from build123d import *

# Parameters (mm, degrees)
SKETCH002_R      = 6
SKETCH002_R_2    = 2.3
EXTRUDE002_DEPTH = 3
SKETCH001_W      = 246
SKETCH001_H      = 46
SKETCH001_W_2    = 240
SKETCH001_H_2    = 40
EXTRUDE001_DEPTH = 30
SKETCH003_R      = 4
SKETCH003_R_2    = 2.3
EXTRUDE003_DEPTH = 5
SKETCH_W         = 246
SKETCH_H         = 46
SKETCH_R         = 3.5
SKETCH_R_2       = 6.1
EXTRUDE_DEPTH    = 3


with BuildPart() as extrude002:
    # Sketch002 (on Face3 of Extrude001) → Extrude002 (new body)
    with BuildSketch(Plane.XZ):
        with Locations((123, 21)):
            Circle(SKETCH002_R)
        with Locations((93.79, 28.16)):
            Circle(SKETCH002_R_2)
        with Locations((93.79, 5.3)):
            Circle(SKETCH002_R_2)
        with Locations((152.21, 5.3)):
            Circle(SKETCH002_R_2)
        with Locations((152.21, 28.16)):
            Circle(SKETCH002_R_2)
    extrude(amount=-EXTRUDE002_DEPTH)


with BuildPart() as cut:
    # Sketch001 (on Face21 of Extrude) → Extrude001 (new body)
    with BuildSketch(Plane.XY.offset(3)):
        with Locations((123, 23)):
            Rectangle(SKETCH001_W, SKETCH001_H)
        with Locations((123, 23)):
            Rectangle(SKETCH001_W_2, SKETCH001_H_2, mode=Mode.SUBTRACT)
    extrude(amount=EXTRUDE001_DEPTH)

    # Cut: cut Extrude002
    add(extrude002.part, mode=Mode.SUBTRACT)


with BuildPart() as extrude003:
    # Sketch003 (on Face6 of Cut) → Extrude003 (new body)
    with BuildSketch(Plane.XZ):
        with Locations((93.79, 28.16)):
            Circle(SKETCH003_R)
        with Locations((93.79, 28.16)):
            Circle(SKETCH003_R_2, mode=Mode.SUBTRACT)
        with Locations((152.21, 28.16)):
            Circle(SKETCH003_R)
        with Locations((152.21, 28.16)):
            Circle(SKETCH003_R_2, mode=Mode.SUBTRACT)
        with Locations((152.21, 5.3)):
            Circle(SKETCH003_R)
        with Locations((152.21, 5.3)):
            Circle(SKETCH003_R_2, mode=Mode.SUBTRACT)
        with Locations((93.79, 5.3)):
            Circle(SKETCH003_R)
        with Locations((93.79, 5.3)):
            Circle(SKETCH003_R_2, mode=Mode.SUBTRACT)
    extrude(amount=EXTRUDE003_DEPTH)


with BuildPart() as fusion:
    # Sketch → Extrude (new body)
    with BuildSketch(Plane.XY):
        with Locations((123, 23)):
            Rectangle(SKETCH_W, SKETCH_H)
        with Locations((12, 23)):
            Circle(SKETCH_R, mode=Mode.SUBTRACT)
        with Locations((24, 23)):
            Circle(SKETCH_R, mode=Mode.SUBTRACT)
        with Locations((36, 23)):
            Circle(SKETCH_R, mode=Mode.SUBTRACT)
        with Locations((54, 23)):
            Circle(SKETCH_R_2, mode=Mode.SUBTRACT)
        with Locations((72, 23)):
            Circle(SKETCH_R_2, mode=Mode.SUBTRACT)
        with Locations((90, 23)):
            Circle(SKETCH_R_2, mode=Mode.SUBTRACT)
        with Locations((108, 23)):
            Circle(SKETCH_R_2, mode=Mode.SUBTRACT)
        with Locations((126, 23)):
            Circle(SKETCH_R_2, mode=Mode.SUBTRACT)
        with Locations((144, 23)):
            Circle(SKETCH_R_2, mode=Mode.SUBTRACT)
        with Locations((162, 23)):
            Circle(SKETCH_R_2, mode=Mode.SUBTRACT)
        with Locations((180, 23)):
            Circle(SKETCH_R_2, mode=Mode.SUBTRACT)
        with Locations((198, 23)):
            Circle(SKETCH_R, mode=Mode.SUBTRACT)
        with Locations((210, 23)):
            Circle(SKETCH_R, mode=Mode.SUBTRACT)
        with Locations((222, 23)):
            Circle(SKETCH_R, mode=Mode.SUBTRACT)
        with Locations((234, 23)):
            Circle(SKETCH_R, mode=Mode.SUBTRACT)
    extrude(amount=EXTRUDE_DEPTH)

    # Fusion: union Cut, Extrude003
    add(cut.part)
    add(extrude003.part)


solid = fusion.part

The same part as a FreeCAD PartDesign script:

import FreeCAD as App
import Part
import Sketcher


def add_polygon(sketch, points):
    """Adds a closed chain of lines whose ends are joined by coincident constraints."""
    first, n = sketch.GeometryCount, len(points)
    for a, b in zip(points, points[1:] + points[:1]):
        sketch.addGeometry(Part.LineSegment(App.Vector(*a, 0), App.Vector(*b, 0)), False)
    for i in range(n):
        sketch.addConstraint(Sketcher.Constraint("Coincident", first + i, 2, first + (i + 1) % n, 1))

doc = App.newDocument("Part")
params = doc.addObject("Spreadsheet::Sheet", "Params")
for row, (alias, value) in enumerate([
    ("sketch1_diameter", "12 mm"),
    ("sketch1_diameter2", "4.6 mm"),
    ("pad1_length", "3 mm"),
    ("sketch2_width", "246 mm"),
    ("sketch2_width2", "240 mm"),
    ("sketch2_height", "46 mm"),
    ("sketch2_height2", "40 mm"),
    ("pad2_length", "30 mm"),
    ("sketch3_diameter", "8 mm"),
    ("sketch3_diameter2", "4.6 mm"),
    ("pad3_length", "5 mm"),
    ("sketch4_diameter", "7 mm"),
    ("sketch4_diameter2", "12.2 mm"),
    ("sketch4_width", "246 mm"),
    ("sketch4_height", "46 mm"),
    ("pad4_length", "3 mm"),
], start=1):
    params.set(f"A{row}", alias)
    params.set(f"B{row}", "=" + value)
    params.setAlias(f"B{row}", alias)

body = doc.addObject("PartDesign::Body", "Body")
body.AllowCompound = True

sketch1 = doc.addObject("Sketcher::SketchObject", "Sketch")
body.addObject(sketch1)
sketch1.AttachmentSupport = (doc.XZ_Plane, [""])
sketch1.MapMode = "FlatFace"
sketch1.addGeometry([
    Part.Circle(App.Vector(123, 21, 0), App.Vector(0, 0, 1), 6),
    Part.Circle(App.Vector(93.8, 28.2, 0), App.Vector(0, 0, 1), 2.3),
    Part.Circle(App.Vector(93.8, 5.3, 0), App.Vector(0, 0, 1), 2.3),
    Part.Circle(App.Vector(152.2, 5.3, 0), App.Vector(0, 0, 1), 2.3),
    Part.Circle(App.Vector(152.2, 28.2, 0), App.Vector(0, 0, 1), 2.3),
], False)
sketch1.addConstraint([
    Sketcher.Constraint("Equal", 1, 2),
    Sketcher.Constraint("Equal", 2, 3),
    Sketcher.Constraint("Equal", 3, 4),
    Sketcher.Constraint("Horizontal", 2, 3, 3, 3),
    Sketcher.Constraint("Horizontal", 1, 3, 4, 3),
    Sketcher.Constraint("Vertical", 1, 3, 2, 3),
    Sketcher.Constraint("Vertical", 3, 3, 4, 3),
    Sketcher.Constraint("Diameter", 0, 12.0),
    Sketcher.Constraint("Diameter", 1, 4.6),
    Sketcher.Constraint("DistanceX", -1, 1, 0, 3, 123.0),
    Sketcher.Constraint("DistanceY", -1, 1, 0, 3, 21.0),
    Sketcher.Constraint("DistanceY", -1, 1, 2, 3, 5.3),
    Sketcher.Constraint("DistanceX", -1, 1, 1, 3, 93.79),
    Sketcher.Constraint("DistanceY", -1, 1, 1, 3, 28.16),
    Sketcher.Constraint("DistanceX", -1, 1, 3, 3, 152.21),
])
sketch1.setExpression("Constraints[7]", "Params.sketch1_diameter")
sketch1.setExpression("Constraints[8]", "Params.sketch1_diameter2")
pad1 = doc.addObject("PartDesign::Pad", "Pad")
body.addObject(pad1)
pad1.Profile = sketch1
pad1.setExpression("Length", "Params.pad1_length")
pad1.Reversed = True
body2 = doc.addObject("PartDesign::Body", "Body001")

sketch2 = doc.addObject("Sketcher::SketchObject", "Sketch001")
body2.addObject(sketch2)
sketch2.AttachmentSupport = (doc.getObject("XY_Plane001"), [""])
sketch2.MapMode = "FlatFace"
sketch2.AttachmentOffset = App.Placement(App.Vector(0, 0, 3), App.Rotation())
add_polygon(sketch2, [(0, 46), (0, 0), (246, 0), (246, 46)])
add_polygon(sketch2, [(243, 3), (3, 3), (3, 43), (243, 43)])
sketch2.addConstraint([
    Sketcher.Constraint("Vertical", 0),
    Sketcher.Constraint("Horizontal", 1),
    Sketcher.Constraint("Vertical", 2),
    Sketcher.Constraint("Horizontal", 3),
    Sketcher.Constraint("Horizontal", 4),
    Sketcher.Constraint("Vertical", 5),
    Sketcher.Constraint("Horizontal", 6),
    Sketcher.Constraint("Vertical", 7),
    Sketcher.Constraint("Coincident", 0, 2, -1, 1),
    Sketcher.Constraint("DistanceX", 1, 1, 1, 2, 246.0),
    Sketcher.Constraint("DistanceX", 4, 2, 4, 1, 240.0),
    Sketcher.Constraint("DistanceY", 0, 2, 0, 1, 46.0),
    Sketcher.Constraint("DistanceY", 5, 1, 5, 2, 40.0),
    Sketcher.Constraint("DistanceX", -1, 1, 4, 2, 3.0),
    Sketcher.Constraint("DistanceY", -1, 1, 4, 2, 3.0),
])
sketch2.setExpression("Constraints[17]", "Params.sketch2_width")
sketch2.setExpression("Constraints[18]", "Params.sketch2_width2")
sketch2.setExpression("Constraints[19]", "Params.sketch2_height")
sketch2.setExpression("Constraints[20]", "Params.sketch2_height2")
pad2 = doc.addObject("PartDesign::Pad", "Pad001")
body2.addObject(pad2)
pad2.Profile = sketch2
pad2.setExpression("Length", "Params.pad2_length")
doc.recompute()

boolean = doc.addObject("PartDesign::Boolean", "Boolean")
body2.addObject(boolean)
boolean.Type = "Cut"
boolean.addObjects([body])
body3 = doc.addObject("PartDesign::Body", "Body002")
body3.AllowCompound = True

sketch3 = doc.addObject("Sketcher::SketchObject", "Sketch002")
body3.addObject(sketch3)
sketch3.AttachmentSupport = (doc.getObject("XZ_Plane002"), [""])
sketch3.MapMode = "FlatFace"
sketch3.addGeometry([
    Part.Circle(App.Vector(93.8, 28.2, 0), App.Vector(0, 0, 1), 4),
    Part.Circle(App.Vector(93.8, 28.2, 0), App.Vector(0, 0, 1), 2.3),
    Part.Circle(App.Vector(152.2, 28.2, 0), App.Vector(0, 0, 1), 4),
    Part.Circle(App.Vector(152.2, 28.2, 0), App.Vector(0, 0, 1), 2.3),
    Part.Circle(App.Vector(152.2, 5.3, 0), App.Vector(0, 0, 1), 4),
    Part.Circle(App.Vector(152.2, 5.3, 0), App.Vector(0, 0, 1), 2.3),
    Part.Circle(App.Vector(93.8, 5.3, 0), App.Vector(0, 0, 1), 4),
    Part.Circle(App.Vector(93.8, 5.3, 0), App.Vector(0, 0, 1), 2.3),
], False)
sketch3.addConstraint([
    Sketcher.Constraint("Coincident", 1, 3, 0, 3),
    Sketcher.Constraint("Coincident", 3, 3, 2, 3),
    Sketcher.Constraint("Coincident", 5, 3, 4, 3),
    Sketcher.Constraint("Coincident", 7, 3, 6, 3),
    Sketcher.Constraint("Equal", 0, 2),
    Sketcher.Constraint("Equal", 1, 3),
    Sketcher.Constraint("Equal", 2, 4),
    Sketcher.Constraint("Equal", 3, 5),
    Sketcher.Constraint("Equal", 4, 6),
    Sketcher.Constraint("Equal", 5, 7),
    Sketcher.Constraint("Horizontal", 1, 3, 2, 3),
    Sketcher.Constraint("Horizontal", 5, 3, 6, 3),
    Sketcher.Constraint("Vertical", 3, 3, 4, 3),
    Sketcher.Constraint("Vertical", 1, 3, 6, 3),
    Sketcher.Constraint("Diameter", 0, 8.0),
    Sketcher.Constraint("Diameter", 1, 4.6),
    Sketcher.Constraint("DistanceY", -1, 1, 4, 3, 5.3),
    Sketcher.Constraint("DistanceX", -1, 1, 0, 3, 93.79),
    Sketcher.Constraint("DistanceY", -1, 1, 0, 3, 28.16),
    Sketcher.Constraint("DistanceX", -1, 1, 2, 3, 152.21),
])
sketch3.setExpression("Constraints[14]", "Params.sketch3_diameter")
sketch3.setExpression("Constraints[15]", "Params.sketch3_diameter2")
pad3 = doc.addObject("PartDesign::Pad", "Pad002")
body3.addObject(pad3)
pad3.Profile = sketch3
pad3.setExpression("Length", "Params.pad3_length")
body4 = doc.addObject("PartDesign::Body", "Body003")

sketch4 = doc.addObject("Sketcher::SketchObject", "Sketch003")
body4.addObject(sketch4)
sketch4.AttachmentSupport = (doc.getObject("XY_Plane003"), [""])
sketch4.MapMode = "FlatFace"
add_polygon(sketch4, [(0, 46), (0, 0), (246, 0), (246, 46)])
sketch4.addGeometry(Part.Circle(App.Vector(12, 23, 0), App.Vector(0, 0, 1), 3.5), False)
sketch4.addGeometry(Part.Circle(App.Vector(24, 23, 0), App.Vector(0, 0, 1), 3.5), False)
sketch4.addGeometry(Part.Circle(App.Vector(36, 23, 0), App.Vector(0, 0, 1), 3.5), False)
sketch4.addGeometry(Part.Circle(App.Vector(54, 23, 0), App.Vector(0, 0, 1), 6.1), False)
sketch4.addGeometry(Part.Circle(App.Vector(72, 23, 0), App.Vector(0, 0, 1), 6.1), False)
sketch4.addGeometry(Part.Circle(App.Vector(90, 23, 0), App.Vector(0, 0, 1), 6.1), False)
sketch4.addGeometry(Part.Circle(App.Vector(108, 23, 0), App.Vector(0, 0, 1), 6.1), False)
sketch4.addGeometry(Part.Circle(App.Vector(126, 23, 0), App.Vector(0, 0, 1), 6.1), False)
sketch4.addGeometry(Part.Circle(App.Vector(144, 23, 0), App.Vector(0, 0, 1), 6.1), False)
sketch4.addGeometry(Part.Circle(App.Vector(162, 23, 0), App.Vector(0, 0, 1), 6.1), False)
sketch4.addGeometry(Part.Circle(App.Vector(180, 23, 0), App.Vector(0, 0, 1), 6.1), False)
sketch4.addGeometry(Part.Circle(App.Vector(198, 23, 0), App.Vector(0, 0, 1), 3.5), False)
sketch4.addGeometry(Part.Circle(App.Vector(210, 23, 0), App.Vector(0, 0, 1), 3.5), False)
sketch4.addGeometry(Part.Circle(App.Vector(222, 23, 0), App.Vector(0, 0, 1), 3.5), False)
sketch4.addGeometry(Part.Circle(App.Vector(234, 23, 0), App.Vector(0, 0, 1), 3.5), False)
sketch4.addConstraint([
    Sketcher.Constraint("Vertical", 0),
    Sketcher.Constraint("Horizontal", 1),
    Sketcher.Constraint("Vertical", 2),
    Sketcher.Constraint("Horizontal", 3),
    Sketcher.Constraint("Coincident", 0, 2, -1, 1),
    Sketcher.Constraint("Equal", 4, 5),
    Sketcher.Constraint("Equal", 5, 6),
    Sketcher.Constraint("Equal", 7, 8),
    Sketcher.Constraint("Equal", 8, 9),
    Sketcher.Constraint("Equal", 9, 10),
    Sketcher.Constraint("Equal", 10, 11),
    Sketcher.Constraint("Equal", 11, 12),
    Sketcher.Constraint("Equal", 12, 13),
    Sketcher.Constraint("Equal", 13, 14),
    Sketcher.Constraint("Equal", 6, 15),
    Sketcher.Constraint("Equal", 15, 16),
    Sketcher.Constraint("Equal", 16, 17),
    Sketcher.Constraint("Equal", 17, 18),
    Sketcher.Constraint("Horizontal", 4, 3, 5, 3),
    Sketcher.Constraint("Horizontal", 5, 3, 6, 3),
    Sketcher.Constraint("Horizontal", 6, 3, 7, 3),
    Sketcher.Constraint("Horizontal", 7, 3, 8, 3),
    Sketcher.Constraint("Horizontal", 8, 3, 9, 3),
    Sketcher.Constraint("Horizontal", 9, 3, 10, 3),
    Sketcher.Constraint("Horizontal", 10, 3, 11, 3),
    Sketcher.Constraint("Horizontal", 11, 3, 12, 3),
    Sketcher.Constraint("Horizontal", 12, 3, 13, 3),
    Sketcher.Constraint("Horizontal", 13, 3, 14, 3),
    Sketcher.Constraint("Horizontal", 14, 3, 15, 3),
    Sketcher.Constraint("Horizontal", 15, 3, 16, 3),
    Sketcher.Constraint("Horizontal", 16, 3, 17, 3),
    Sketcher.Constraint("Horizontal", 17, 3, 18, 3),
    Sketcher.Constraint("Diameter", 4, 7.0),
    Sketcher.Constraint("Diameter", 7, 12.2),
    Sketcher.Constraint("DistanceX", 1, 1, 1, 2, 246.0),
    Sketcher.Constraint("DistanceY", 0, 2, 0, 1, 46.0),
    Sketcher.Constraint("DistanceX", -1, 1, 4, 3, 12.0),
    Sketcher.Constraint("DistanceY", -1, 1, 4, 3, 23.0),
    Sketcher.Constraint("DistanceX", -1, 1, 5, 3, 24.0),
    Sketcher.Constraint("DistanceX", -1, 1, 6, 3, 36.0),
    Sketcher.Constraint("DistanceX", -1, 1, 7, 3, 54.0),
    Sketcher.Constraint("DistanceX", -1, 1, 8, 3, 72.0),
    Sketcher.Constraint("DistanceX", -1, 1, 9, 3, 90.0),
    Sketcher.Constraint("DistanceX", -1, 1, 10, 3, 108.0),
    Sketcher.Constraint("DistanceX", -1, 1, 11, 3, 126.0),
    Sketcher.Constraint("DistanceX", -1, 1, 12, 3, 144.0),
    Sketcher.Constraint("DistanceX", -1, 1, 13, 3, 162.0),
    Sketcher.Constraint("DistanceX", -1, 1, 14, 3, 180.0),
    Sketcher.Constraint("DistanceX", -1, 1, 15, 3, 198.0),
    Sketcher.Constraint("DistanceX", -1, 1, 16, 3, 210.0),
    Sketcher.Constraint("DistanceX", -1, 1, 17, 3, 222.0),
    Sketcher.Constraint("DistanceX", -1, 1, 18, 3, 234.0),
])
sketch4.setExpression("Constraints[36]", "Params.sketch4_diameter")
sketch4.setExpression("Constraints[37]", "Params.sketch4_diameter2")
sketch4.setExpression("Constraints[38]", "Params.sketch4_width")
sketch4.setExpression("Constraints[39]", "Params.sketch4_height")
pad4 = doc.addObject("PartDesign::Pad", "Pad003")
body4.addObject(pad4)
pad4.Profile = sketch4
pad4.setExpression("Length", "Params.pad4_length")
doc.recompute()

boolean2 = doc.addObject("PartDesign::Boolean", "Boolean001")
body4.addObject(boolean2)
boolean2.Type = "Fuse"
boolean2.addObjects([body2])
doc.recompute()

boolean3 = doc.addObject("PartDesign::Boolean", "Boolean002")
body4.addObject(boolean3)
boolean3.Type = "Fuse"
boolean3.addObjects([body3])

doc.recompute()
